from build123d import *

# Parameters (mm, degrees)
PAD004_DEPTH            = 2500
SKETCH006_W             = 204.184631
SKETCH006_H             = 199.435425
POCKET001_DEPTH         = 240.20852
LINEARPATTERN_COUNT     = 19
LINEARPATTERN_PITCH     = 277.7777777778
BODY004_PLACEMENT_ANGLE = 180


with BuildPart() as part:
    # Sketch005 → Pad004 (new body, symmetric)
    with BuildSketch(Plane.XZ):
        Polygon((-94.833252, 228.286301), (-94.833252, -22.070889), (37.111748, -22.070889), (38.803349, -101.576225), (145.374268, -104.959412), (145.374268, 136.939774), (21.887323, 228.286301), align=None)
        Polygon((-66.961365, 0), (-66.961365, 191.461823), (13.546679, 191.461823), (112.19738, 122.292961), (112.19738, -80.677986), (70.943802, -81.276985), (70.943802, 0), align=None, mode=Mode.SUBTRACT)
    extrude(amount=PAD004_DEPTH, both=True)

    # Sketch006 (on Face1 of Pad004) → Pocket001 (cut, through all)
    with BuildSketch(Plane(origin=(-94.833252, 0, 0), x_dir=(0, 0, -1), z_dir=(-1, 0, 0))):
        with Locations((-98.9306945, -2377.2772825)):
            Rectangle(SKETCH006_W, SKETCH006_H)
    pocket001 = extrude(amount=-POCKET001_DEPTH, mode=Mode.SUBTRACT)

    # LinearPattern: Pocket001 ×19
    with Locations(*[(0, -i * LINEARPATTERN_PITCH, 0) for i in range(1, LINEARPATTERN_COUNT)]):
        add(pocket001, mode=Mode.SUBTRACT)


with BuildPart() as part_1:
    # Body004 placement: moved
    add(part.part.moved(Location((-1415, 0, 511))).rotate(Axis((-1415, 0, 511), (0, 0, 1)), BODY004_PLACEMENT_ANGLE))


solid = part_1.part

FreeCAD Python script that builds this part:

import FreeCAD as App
import Part
import Sketcher

V = App.Vector
Q = App.Units.Quantity


def add_polygon(sketch, points):
    """Adds a closed chain of lines whose ends are joined by coincident constraints."""
    first, n = sketch.GeometryCount, len(points)
    for a, b in zip(points, points[1:] + points[:1]):
        sketch.addGeometry(Part.LineSegment(App.Vector(*a, 0), App.Vector(*b, 0)), False)
    for i in range(n):
        sketch.addConstraint(Sketcher.Constraint("Coincident", first + i, 2, first + (i + 1) % n, 1))

doc = App.newDocument("Part")
params = doc.addObject("Spreadsheet::Sheet", "Params")
for row, (alias, value) in enumerate([
    ("pad1_length", "5000 mm"),
    ("linearpattern_pitch", "277.777778 mm"),
], start=1):
    params.set(f"A{row}", alias)
    params.set(f"B{row}", "=" + value)
    params.setAlias(f"B{row}", alias)

body = doc.addObject("PartDesign::Body", "Body")

sketch1 = body.newObject("Sketcher::SketchObject", "Sketch")
sketch1.AttachmentSupport = (doc.getObject("XZ_Plane"), [""])
sketch1.MapMode = "FlatFace"
add_polygon(sketch1, [(-94.833252, 228.286301), (-94.833252, -22.070889), (37.111748, -22.070889), (38.803349, -101.576225), (145.374268, -104.959412), (145.374268, 136.939774), (21.887323, 228.286301)])
add_polygon(sketch1, [(70.943802, 0), (-66.961365, 0), (-66.961365, 191.461823), (13.546679, 191.461823), (112.19738, 122.292961), (112.19738, -80.677986), (70.943802, -81.276985)])
sketch1.addConstraint([
    Sketcher.Constraint("Vertical", 0),
    Sketcher.Constraint("Horizontal", 1),
    Sketcher.Constraint("Vertical", 4),
    Sketcher.Constraint("Horizontal", 6),
    Sketcher.Constraint("Horizontal", 7),
    Sketcher.Constraint("Vertical", 8),
    Sketcher.Constraint("Horizontal", 9),
    Sketcher.Constraint("Vertical", 11),
    Sketcher.Constraint("Vertical", 13),
    Sketcher.Constraint("PointOnObject", 7, 2, -1),
    Sketcher.Constraint("DistanceX", 1, 1, 1, 2, Q("131.945 mm")),
    Sketcher.Constraint("DistanceY", 2, 2, 4, 2, Q("238.515999 mm")),
    Sketcher.Constraint("DistanceY", 12, 2, 11, 2, Q("0.598999 mm")),
    Sketcher.Constraint("DistanceY", 0, 2, 0, 1, Q("250.35719 mm")),
    Sketcher.Constraint("DistanceY", -1, 1, 5, 2, Q("228.286301 mm")),
    Sketcher.Constraint("DistanceX", 1, 2, 2, 2, Q("1.691601 mm")),
    Sketcher.Constraint("DistanceX", 9, 2, 10, 2, Q("98.650701 mm")),
    Sketcher.Constraint("Distance", 2, Q("79.52333 mm")),
    Sketcher.Constraint("DistanceX", 6, 2, 6, 1, Q("116.720575 mm")),
    Sketcher.Constraint("DistanceX", 7, 2, 7, 1, Q("137.905167 mm")),
    Sketcher.Constraint("DistanceX", 9, 1, 9, 2, Q("80.508044 mm")),
    Sketcher.Constraint("DistanceY", 4, 1, 4, 2, Q("241.899186 mm")),
    Sketcher.Constraint("DistanceY", 8, 1, 8, 2, Q("191.461823 mm")),
    Sketcher.Constraint("DistanceY", 11, 2, 11, 1, Q("202.970947 mm")),
    Sketcher.Constraint("DistanceY", 13, 1, 13, 2, Q("81.276985 mm")),
    Sketcher.Constraint("DistanceX", 0, 2, -1, 1, Q("94.833252 mm")),
    Sketcher.Constraint("DistanceX", -1, 1, 3, 2, Q("145.374268 mm")),
    Sketcher.Constraint("DistanceX", -1, 1, 9, 2, Q("13.546679 mm")),
])
pad1 = body.newObject("PartDesign::Pad", "Pad")
pad1.Profile = sketch1
pad1.setExpression("Length", "Params.pad1_length")
pad1.Midplane = True

sketch2 = body.newObject("Sketcher::SketchObject", "Sketch001")
sketch2.AttachmentSupport = (doc.getObject("YZ_Plane"), [""])
sketch2.MapMode = "FlatFace"
sketch2.AttachmentOffset = App.Placement(V(0, 0, -94.833252), App.Rotation())
add_polygon(sketch2, [(2277.55957, 201.02301), (2476.994995, 201.02301), (2476.994995, -3.161621), (2277.55957, -3.161621)])
sketch2.addConstraint([
    Sketcher.Constraint("Horizontal", 0),
    Sketcher.Constraint("Vertical", 1),
    Sketcher.Constraint("Horizontal", 2),
    Sketcher.Constraint("Vertical", 3),
    Sketcher.Constraint("DistanceY", 1, 2, 1, 1, Q("204.184631 mm")),
    Sketcher.Constraint("DistanceX", 0, 1, 0, 2, Q("199.435425 mm")),
    Sketcher.Constraint("DistanceY", -1, 1, 0, 2, Q("201.02301 mm")),
    Sketcher.Constraint("DistanceX", -1, 1, 2, 2, Q("2277.55957 mm")),
])
pocket1 = body.newObject("PartDesign::Pocket", "Pocket")
pocket1.Profile = sketch2
pocket1.Type = "ThroughAll"
pocket1.Reversed = True
doc.recompute()

linearpattern = body.newObject("PartDesign::LinearPattern", "LinearPattern")
linearpattern.Originals = [pocket1]
linearpattern.Direction = (doc.getObject("Y_Axis"), [""])
linearpattern.Mode = "offset"
linearpattern.setExpression("Offset", "Params.linearpattern_pitch")
linearpattern.Occurrences = 19
linearpattern.Reversed = True
body.Tip = linearpattern
body2 = doc.addObject("PartDesign::Body", "Body001")
doc.recompute()

body.Placement = App.Placement(V(-1415, 0, 511), App.Rotation(V(0, 0, 1), 180))
boolean = body2.newObject("PartDesign::Boolean", "Boolean")
boolean.Type = "Fuse"
boolean.addObjects([body])

doc.recompute()
